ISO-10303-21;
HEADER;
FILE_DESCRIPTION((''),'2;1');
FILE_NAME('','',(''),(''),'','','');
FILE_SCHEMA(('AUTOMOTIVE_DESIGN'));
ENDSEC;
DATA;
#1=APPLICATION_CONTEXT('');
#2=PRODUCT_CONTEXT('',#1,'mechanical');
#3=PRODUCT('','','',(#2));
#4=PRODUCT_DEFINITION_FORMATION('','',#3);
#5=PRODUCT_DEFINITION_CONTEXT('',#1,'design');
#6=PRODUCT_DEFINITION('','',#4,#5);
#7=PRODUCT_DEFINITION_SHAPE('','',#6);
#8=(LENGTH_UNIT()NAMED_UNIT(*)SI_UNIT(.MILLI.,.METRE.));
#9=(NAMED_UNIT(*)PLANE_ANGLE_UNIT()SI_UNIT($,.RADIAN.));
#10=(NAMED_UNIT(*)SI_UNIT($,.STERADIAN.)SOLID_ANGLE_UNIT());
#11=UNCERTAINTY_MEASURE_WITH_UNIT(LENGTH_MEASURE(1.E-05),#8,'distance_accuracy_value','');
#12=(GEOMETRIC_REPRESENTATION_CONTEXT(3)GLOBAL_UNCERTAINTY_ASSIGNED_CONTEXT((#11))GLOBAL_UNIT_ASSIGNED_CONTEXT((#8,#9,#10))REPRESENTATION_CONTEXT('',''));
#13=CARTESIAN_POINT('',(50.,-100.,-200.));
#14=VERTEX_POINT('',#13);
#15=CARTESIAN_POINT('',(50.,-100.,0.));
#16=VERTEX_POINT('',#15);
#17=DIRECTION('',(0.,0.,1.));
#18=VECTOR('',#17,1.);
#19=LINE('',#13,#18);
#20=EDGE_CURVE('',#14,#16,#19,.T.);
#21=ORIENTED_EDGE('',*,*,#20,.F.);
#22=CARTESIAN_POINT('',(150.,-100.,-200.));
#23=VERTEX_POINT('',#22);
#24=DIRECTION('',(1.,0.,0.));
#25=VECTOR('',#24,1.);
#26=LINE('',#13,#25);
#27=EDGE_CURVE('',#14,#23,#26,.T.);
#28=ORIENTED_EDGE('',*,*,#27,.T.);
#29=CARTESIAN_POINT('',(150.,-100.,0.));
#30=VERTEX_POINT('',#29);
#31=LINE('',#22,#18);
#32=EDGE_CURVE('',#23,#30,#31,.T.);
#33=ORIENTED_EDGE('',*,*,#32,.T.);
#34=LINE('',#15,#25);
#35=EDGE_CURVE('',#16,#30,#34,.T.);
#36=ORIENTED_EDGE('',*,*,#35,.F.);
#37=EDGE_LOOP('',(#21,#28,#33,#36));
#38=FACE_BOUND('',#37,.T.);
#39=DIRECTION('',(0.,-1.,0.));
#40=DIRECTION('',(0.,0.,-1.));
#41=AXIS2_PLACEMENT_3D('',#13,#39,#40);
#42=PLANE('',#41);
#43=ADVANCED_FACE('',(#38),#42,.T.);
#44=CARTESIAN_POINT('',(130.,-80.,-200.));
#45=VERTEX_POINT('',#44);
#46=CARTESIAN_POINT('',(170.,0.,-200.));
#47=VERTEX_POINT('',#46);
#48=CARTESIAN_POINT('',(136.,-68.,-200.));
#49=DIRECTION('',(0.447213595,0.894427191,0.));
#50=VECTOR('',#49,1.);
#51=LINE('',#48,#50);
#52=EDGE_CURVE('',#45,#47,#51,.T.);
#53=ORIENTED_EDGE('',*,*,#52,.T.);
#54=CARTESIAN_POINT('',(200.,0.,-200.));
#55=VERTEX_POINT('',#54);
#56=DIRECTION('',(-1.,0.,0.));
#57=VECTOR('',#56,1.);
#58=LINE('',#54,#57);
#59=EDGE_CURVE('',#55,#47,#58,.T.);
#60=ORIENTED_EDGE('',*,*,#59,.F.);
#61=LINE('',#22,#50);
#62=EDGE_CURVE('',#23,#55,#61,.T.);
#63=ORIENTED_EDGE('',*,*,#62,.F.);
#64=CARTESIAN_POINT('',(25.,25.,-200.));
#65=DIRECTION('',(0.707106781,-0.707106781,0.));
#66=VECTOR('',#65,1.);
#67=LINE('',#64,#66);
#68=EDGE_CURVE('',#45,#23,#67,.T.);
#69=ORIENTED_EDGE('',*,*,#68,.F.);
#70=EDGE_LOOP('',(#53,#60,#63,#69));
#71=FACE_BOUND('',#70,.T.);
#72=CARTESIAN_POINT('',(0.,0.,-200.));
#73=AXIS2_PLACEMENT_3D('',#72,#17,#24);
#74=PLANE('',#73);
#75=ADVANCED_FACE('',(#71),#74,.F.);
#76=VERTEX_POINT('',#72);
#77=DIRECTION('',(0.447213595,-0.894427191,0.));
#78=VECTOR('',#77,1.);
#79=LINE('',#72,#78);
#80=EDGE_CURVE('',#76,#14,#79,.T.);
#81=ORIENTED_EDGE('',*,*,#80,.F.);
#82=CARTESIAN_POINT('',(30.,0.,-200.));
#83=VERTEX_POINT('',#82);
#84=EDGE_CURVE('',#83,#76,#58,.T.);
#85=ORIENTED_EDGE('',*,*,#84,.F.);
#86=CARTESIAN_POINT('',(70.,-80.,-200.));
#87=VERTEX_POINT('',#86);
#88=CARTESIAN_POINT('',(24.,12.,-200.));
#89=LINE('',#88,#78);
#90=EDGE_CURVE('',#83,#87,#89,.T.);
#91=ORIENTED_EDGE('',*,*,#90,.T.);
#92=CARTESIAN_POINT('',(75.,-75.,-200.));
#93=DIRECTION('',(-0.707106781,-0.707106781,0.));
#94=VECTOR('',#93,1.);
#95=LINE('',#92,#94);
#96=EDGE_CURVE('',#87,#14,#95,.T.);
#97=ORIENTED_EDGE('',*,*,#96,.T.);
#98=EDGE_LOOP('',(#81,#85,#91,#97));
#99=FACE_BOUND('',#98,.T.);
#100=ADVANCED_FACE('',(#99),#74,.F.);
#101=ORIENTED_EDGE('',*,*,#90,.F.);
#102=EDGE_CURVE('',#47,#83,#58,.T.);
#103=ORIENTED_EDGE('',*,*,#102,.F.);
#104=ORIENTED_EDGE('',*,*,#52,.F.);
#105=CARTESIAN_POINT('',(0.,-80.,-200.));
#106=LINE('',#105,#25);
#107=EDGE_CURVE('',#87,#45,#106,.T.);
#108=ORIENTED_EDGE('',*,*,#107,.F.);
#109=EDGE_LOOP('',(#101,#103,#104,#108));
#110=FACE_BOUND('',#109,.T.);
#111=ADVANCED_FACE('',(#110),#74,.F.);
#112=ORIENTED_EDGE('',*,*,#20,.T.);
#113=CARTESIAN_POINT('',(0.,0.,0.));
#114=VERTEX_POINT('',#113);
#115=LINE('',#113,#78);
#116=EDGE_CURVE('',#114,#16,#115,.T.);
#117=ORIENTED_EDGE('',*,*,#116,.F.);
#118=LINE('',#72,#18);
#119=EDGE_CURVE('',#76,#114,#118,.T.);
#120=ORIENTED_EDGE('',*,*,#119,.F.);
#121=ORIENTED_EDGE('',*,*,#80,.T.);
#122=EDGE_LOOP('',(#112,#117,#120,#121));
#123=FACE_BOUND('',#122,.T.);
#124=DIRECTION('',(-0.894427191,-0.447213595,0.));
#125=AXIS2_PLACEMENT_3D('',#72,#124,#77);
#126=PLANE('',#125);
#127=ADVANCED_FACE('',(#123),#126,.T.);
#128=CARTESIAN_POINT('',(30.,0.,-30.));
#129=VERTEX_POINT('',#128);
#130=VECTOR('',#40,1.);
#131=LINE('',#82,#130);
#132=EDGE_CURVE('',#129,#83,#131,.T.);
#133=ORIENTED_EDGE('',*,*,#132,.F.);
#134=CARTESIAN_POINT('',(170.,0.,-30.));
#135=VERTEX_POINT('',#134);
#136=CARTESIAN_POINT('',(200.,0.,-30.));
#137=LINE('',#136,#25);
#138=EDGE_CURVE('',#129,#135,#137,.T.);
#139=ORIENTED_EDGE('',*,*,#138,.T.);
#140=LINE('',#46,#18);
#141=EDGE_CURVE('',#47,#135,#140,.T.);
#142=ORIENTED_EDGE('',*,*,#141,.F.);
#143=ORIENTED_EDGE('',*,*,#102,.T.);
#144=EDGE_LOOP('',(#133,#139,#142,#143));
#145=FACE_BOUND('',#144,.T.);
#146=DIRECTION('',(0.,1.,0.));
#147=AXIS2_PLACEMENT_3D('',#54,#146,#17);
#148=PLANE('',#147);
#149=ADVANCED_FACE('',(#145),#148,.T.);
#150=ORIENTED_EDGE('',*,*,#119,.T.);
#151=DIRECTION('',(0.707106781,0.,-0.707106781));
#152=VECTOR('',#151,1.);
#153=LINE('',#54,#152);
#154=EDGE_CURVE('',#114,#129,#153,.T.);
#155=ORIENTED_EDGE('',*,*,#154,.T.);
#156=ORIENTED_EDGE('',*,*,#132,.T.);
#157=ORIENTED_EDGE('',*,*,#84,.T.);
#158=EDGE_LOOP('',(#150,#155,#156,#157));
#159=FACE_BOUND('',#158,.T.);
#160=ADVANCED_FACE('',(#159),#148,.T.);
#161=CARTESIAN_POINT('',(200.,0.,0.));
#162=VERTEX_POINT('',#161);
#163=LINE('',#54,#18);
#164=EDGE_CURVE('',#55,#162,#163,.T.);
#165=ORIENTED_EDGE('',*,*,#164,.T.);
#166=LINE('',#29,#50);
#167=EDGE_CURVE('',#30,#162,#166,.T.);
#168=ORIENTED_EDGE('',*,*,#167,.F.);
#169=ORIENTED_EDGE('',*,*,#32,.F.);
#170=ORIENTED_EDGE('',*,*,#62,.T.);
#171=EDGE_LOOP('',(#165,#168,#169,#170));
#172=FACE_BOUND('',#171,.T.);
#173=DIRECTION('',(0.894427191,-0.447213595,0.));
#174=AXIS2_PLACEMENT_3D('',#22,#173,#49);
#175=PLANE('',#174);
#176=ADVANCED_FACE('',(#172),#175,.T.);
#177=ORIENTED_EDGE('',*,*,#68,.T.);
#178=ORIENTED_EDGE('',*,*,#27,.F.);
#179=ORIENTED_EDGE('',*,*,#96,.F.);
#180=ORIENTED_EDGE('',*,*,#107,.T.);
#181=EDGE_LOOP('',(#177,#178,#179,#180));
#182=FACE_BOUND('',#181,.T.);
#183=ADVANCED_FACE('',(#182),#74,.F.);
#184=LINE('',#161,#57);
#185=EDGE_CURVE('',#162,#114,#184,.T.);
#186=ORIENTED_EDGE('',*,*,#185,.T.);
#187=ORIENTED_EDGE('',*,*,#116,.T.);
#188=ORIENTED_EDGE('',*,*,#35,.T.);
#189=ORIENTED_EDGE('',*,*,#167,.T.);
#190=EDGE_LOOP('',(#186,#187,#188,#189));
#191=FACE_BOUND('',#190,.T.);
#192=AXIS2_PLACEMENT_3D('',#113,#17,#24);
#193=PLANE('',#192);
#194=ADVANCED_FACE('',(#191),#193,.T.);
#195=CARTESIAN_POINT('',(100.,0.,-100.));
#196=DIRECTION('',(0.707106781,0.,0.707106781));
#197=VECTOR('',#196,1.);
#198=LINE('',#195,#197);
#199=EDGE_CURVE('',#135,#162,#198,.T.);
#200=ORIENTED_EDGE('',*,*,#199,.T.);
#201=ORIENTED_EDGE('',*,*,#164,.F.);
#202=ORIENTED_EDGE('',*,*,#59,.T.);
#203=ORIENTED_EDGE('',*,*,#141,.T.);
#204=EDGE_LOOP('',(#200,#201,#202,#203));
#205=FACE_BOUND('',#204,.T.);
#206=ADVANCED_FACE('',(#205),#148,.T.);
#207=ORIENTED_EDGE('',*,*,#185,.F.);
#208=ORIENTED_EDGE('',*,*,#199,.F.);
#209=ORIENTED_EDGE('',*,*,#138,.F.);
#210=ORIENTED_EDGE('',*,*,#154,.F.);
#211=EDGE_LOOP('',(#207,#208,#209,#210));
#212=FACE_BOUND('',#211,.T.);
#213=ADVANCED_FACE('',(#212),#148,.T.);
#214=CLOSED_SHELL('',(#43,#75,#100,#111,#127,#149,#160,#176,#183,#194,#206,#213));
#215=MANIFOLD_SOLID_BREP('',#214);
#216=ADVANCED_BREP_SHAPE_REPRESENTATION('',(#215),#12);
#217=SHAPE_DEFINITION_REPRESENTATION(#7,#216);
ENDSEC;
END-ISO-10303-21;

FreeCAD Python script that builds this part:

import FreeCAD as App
import Part
import Sketcher

doc = App.newDocument("Part")
body = doc.addObject("PartDesign::Body", "Body")

sketch1 = body.newObject("Sketcher::SketchObject", "Sketch")
sketch1.AttachmentSupport = (doc.getObject("XY_Plane"), [""])
sketch1.MapMode = "FlatFace"
sketch1.addGeometry([
    Part.LineSegment(App.Vector(0, 0, 0), App.Vector(50, -100, 0)),
    Part.LineSegment(App.Vector(50, -100, 0), App.Vector(150, -100, 0)),
    Part.LineSegment(App.Vector(150, -100, 0), App.Vector(200, 0, 0)),
    Part.LineSegment(App.Vector(200, 0, 0), App.Vector(0, 0, 0)),
], False)
sketch1.addConstraint([
    Sketcher.Constraint("Coincident", 0, 2, 1, 1),
    Sketcher.Constraint("Coincident", 1, 2, 2, 1),
    Sketcher.Constraint("Coincident", 2, 2, 3, 1),
    Sketcher.Constraint("Coincident", 3, 2, 0, 1),
    Sketcher.Constraint("Horizontal", 1),
    Sketcher.Constraint("Horizontal", 3),
    Sketcher.Constraint("Coincident", 3, 2, -1, 1),
    Sketcher.Constraint("Equal", 0, 2),
    Sketcher.Constraint("DistanceX", 1, 1, 1, 2, 100.0),
    Sketcher.Constraint("DistanceX", 3, 2, 3, 1, 200.0),
    Sketcher.Constraint("DistanceY", 0, 2, -1, 1, 100.0),
])
pad1 = body.newObject("PartDesign::Pad", "Pad")
pad1.Profile = sketch1
pad1.Length = 200
pad1.Reversed = True

doc.recompute()
